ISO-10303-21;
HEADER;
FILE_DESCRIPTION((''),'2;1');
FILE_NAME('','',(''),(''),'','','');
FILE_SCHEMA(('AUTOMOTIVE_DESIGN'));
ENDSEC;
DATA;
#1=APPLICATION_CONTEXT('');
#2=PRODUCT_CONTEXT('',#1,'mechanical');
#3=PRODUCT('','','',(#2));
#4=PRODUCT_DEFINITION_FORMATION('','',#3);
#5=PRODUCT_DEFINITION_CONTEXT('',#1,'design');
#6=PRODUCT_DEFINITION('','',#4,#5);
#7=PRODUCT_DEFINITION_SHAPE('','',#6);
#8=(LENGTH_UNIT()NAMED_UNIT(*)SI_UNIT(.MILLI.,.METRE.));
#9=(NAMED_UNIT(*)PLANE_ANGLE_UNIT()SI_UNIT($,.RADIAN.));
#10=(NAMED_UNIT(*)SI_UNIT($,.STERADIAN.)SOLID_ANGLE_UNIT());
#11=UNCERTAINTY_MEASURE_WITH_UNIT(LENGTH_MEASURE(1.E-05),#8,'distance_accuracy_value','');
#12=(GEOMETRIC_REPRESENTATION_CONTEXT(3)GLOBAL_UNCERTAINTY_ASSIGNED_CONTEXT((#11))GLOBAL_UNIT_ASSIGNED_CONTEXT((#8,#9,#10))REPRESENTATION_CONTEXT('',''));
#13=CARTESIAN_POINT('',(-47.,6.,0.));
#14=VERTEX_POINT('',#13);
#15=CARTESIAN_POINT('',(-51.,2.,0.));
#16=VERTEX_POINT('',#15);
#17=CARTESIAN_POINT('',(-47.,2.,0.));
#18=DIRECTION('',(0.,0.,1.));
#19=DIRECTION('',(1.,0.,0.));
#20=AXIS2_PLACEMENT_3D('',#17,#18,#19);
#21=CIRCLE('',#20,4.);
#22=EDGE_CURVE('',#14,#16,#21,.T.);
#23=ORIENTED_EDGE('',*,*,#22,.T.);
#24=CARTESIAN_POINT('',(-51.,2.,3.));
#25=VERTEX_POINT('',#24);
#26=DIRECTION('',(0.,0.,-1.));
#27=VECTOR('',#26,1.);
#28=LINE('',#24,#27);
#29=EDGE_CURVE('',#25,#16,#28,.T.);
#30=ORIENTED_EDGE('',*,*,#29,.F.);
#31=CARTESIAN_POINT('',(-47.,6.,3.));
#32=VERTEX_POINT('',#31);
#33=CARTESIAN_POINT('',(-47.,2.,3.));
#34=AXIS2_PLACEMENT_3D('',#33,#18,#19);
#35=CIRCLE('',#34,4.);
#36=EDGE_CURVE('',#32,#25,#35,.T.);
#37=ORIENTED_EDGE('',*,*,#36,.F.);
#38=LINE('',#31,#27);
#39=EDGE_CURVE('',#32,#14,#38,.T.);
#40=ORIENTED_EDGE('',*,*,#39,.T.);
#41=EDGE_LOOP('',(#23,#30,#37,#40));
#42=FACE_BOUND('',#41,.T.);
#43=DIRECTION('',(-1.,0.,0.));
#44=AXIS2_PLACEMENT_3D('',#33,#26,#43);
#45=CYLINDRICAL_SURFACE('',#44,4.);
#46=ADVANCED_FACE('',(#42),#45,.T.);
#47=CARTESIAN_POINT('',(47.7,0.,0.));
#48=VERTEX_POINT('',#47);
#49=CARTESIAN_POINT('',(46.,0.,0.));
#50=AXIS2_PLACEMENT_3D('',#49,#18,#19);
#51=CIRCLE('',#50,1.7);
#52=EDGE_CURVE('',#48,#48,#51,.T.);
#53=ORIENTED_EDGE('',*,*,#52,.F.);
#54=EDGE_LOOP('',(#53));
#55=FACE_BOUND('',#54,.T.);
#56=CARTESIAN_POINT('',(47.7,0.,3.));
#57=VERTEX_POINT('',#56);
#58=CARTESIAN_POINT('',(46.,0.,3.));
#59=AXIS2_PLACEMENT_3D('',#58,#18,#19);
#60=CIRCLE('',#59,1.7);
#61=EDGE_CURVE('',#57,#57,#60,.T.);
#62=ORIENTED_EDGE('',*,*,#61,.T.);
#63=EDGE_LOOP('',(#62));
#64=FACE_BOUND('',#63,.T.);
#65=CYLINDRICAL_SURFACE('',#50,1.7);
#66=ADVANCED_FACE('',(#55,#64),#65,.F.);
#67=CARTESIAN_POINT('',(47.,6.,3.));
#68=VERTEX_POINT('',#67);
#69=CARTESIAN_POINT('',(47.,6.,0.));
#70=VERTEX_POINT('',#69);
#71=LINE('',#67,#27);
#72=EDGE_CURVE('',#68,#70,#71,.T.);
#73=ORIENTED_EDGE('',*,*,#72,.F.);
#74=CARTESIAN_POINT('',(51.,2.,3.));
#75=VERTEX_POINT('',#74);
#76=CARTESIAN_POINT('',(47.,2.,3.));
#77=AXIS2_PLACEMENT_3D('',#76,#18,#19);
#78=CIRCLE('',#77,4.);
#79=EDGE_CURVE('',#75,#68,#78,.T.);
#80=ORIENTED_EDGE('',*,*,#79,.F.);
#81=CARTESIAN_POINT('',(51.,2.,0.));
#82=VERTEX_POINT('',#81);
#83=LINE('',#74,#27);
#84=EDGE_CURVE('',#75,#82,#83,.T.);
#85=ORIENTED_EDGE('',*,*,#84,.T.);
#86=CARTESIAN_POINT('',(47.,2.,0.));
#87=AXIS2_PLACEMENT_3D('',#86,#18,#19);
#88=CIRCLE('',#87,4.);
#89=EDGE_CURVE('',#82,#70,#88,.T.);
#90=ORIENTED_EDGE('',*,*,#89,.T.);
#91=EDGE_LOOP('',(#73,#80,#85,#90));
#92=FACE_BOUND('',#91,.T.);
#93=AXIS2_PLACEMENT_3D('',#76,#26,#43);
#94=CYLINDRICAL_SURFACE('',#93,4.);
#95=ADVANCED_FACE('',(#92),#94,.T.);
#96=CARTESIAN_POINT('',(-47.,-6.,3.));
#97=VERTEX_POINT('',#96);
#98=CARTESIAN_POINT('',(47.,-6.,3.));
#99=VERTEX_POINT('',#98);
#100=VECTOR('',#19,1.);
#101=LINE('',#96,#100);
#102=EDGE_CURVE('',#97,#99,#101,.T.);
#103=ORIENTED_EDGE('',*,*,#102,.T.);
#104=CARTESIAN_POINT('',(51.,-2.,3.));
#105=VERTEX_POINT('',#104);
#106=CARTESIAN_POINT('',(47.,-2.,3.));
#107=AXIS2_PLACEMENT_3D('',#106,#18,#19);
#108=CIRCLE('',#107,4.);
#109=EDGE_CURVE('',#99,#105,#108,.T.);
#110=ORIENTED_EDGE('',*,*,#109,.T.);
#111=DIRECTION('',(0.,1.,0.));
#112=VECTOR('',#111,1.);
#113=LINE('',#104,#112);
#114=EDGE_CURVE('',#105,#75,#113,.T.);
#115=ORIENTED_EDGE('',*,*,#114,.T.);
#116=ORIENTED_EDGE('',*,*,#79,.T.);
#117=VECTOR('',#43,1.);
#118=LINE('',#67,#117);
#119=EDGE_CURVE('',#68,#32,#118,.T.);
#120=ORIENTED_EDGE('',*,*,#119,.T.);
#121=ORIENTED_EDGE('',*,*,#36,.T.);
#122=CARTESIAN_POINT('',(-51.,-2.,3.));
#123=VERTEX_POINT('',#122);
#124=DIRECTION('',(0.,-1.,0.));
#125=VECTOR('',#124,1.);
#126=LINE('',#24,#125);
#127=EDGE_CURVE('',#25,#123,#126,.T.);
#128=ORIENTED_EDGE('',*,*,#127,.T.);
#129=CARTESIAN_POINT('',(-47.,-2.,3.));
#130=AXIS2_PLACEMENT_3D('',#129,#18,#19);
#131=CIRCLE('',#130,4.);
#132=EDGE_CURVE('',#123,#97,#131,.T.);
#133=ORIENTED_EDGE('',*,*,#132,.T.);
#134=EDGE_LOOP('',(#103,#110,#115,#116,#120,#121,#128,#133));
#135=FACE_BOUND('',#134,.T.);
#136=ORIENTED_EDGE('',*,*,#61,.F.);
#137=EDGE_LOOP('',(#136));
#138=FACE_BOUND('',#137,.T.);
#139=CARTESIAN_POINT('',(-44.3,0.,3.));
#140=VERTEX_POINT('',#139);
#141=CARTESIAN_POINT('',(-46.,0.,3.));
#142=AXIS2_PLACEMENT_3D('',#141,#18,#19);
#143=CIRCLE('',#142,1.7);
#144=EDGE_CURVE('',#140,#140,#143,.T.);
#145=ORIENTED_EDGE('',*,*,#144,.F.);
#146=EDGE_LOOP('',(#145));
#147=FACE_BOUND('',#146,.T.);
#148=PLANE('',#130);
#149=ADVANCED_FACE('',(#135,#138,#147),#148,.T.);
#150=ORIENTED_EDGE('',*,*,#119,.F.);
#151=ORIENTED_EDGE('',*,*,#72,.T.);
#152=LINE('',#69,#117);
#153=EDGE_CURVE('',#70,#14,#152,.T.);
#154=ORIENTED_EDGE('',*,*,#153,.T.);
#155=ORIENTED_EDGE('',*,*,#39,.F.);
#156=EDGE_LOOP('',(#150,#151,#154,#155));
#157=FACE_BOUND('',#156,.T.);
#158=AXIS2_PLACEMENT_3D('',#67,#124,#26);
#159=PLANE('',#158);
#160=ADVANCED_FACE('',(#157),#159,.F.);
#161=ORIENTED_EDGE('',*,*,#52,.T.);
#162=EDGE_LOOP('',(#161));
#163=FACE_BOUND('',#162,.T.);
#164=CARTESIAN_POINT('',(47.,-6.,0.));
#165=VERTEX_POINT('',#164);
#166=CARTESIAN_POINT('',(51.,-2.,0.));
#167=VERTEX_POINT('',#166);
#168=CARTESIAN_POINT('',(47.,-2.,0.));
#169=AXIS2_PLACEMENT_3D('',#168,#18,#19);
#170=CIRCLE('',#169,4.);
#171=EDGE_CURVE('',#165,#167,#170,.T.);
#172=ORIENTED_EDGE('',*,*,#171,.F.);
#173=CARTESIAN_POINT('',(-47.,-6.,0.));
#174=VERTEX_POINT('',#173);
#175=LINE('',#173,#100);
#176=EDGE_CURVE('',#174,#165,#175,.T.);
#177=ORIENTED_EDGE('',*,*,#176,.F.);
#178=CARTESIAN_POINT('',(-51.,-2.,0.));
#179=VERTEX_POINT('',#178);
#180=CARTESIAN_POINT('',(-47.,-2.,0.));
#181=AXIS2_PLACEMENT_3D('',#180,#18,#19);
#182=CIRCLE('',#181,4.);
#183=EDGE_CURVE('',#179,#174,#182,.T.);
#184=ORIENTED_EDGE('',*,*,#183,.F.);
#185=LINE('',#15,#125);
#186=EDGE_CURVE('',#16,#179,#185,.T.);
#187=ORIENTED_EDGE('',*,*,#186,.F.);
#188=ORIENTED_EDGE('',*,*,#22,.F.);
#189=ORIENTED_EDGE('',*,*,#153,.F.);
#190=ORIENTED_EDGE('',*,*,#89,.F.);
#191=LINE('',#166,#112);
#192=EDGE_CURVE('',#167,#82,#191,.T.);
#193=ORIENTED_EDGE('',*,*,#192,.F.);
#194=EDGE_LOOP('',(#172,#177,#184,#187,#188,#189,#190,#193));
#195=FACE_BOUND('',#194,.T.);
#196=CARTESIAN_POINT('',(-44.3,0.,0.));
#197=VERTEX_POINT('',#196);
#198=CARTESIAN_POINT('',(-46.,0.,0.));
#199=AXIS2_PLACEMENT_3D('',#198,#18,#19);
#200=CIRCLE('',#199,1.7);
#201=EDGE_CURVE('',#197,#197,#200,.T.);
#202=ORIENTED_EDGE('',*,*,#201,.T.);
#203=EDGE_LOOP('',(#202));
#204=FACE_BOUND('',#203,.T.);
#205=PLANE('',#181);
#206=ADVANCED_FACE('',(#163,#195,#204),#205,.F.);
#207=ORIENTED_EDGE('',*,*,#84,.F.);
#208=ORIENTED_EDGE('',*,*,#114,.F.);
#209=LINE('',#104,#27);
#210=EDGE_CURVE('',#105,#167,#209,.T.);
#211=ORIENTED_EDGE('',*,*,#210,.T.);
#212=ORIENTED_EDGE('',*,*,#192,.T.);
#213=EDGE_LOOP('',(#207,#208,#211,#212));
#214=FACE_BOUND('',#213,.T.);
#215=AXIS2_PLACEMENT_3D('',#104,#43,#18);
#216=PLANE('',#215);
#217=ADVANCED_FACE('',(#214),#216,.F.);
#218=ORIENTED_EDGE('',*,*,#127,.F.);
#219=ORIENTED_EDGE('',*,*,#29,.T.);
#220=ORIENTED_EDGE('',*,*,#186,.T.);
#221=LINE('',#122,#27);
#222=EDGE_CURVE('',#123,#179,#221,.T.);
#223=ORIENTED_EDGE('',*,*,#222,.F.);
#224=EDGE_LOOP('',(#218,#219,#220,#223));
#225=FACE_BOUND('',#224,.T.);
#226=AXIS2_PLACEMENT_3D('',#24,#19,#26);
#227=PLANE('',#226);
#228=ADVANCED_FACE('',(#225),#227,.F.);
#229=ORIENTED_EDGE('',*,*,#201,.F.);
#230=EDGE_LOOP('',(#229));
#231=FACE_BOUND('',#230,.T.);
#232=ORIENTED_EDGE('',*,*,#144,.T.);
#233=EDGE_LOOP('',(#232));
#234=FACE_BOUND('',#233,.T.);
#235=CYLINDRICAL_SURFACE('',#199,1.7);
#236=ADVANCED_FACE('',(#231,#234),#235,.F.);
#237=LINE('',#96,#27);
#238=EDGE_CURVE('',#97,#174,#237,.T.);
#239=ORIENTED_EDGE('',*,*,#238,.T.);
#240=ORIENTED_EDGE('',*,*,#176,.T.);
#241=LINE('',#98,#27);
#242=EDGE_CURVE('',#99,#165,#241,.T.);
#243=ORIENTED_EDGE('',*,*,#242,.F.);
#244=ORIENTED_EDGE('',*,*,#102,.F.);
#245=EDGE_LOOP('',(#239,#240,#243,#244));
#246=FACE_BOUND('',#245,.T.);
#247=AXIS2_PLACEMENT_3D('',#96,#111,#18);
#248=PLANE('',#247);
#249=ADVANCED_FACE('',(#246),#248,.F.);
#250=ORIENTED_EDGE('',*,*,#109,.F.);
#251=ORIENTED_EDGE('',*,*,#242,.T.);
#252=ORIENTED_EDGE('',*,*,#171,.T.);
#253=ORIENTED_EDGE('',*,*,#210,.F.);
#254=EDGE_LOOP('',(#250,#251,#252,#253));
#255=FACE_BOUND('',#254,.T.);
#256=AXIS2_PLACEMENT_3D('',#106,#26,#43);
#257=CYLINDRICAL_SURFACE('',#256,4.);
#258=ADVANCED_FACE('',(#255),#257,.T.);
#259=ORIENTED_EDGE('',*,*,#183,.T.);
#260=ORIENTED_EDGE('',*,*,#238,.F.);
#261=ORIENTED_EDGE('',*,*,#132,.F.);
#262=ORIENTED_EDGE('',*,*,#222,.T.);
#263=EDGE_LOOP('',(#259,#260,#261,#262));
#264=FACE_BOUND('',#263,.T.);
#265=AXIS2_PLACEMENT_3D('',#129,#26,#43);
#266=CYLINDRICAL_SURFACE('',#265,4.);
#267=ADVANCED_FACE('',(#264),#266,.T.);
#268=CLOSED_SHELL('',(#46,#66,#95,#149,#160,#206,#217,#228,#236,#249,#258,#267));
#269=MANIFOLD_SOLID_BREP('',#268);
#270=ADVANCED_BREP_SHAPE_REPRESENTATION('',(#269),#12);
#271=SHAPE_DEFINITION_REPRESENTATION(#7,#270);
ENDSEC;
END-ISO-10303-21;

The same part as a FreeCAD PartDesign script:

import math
import FreeCAD as App
import Part
import Sketcher

V = App.Vector

doc = App.newDocument("Part")
body = doc.addObject("PartDesign::Body", "Body")

sketch1 = body.newObject("Sketcher::SketchObject", "Sketch")
sketch1.AttachmentSupport = (doc.getObject("XY_Plane"), [""])
sketch1.MapMode = "FlatFace"
sketch1.addGeometry(Part.LineSegment(V(-47, -6, 0), V(47, -6, 0)), False)
sketch1.addGeometry(Part.ArcOfCircle(Part.Circle(V(47, -2, 0), V(0, 0, 1), 4), math.radians(-90), math.radians(0)), False)
sketch1.addGeometry(Part.LineSegment(V(51, -2, 0), V(51, 2, 0)), False)
sketch1.addGeometry(Part.ArcOfCircle(Part.Circle(V(47, 2, 0), V(0, 0, 1), 4), math.radians(0), math.radians(90)), False)
sketch1.addGeometry(Part.LineSegment(V(47, 6, 0), V(-47, 6, 0)), False)
sketch1.addGeometry(Part.ArcOfCircle(Part.Circle(V(-47, 2, 0), V(0, 0, 1), 4), math.radians(90), math.radians(180)), False)
sketch1.addGeometry(Part.LineSegment(V(-51, 2, 0), V(-51, -2, 0)), False)
sketch1.addGeometry(Part.ArcOfCircle(Part.Circle(V(-47, -2, 0), V(0, 0, 1), 4), math.radians(180), math.radians(270)), False)
sketch1.addConstraint(Sketcher.Constraint("Tangent", 0, 2, 1, 1))
sketch1.addConstraint(Sketcher.Constraint("Tangent", 1, 2, 2, 1))
sketch1.addConstraint(Sketcher.Constraint("Tangent", 2, 2, 3, 1))
sketch1.addConstraint(Sketcher.Constraint("Tangent", 3, 2, 4, 1))
sketch1.addConstraint(Sketcher.Constraint("Tangent", 4, 2, 5, 1))
sketch1.addConstraint(Sketcher.Constraint("Tangent", 5, 2, 6, 1))
sketch1.addConstraint(Sketcher.Constraint("Tangent", 6, 2, 7, 1))
sketch1.addConstraint(Sketcher.Constraint("Tangent", 7, 2, 0, 1))
sketch1.addConstraint(Sketcher.Constraint("Horizontal", 0))
sketch1.addConstraint(Sketcher.Constraint("Vertical", 2))
sketch1.addConstraint(Sketcher.Constraint("Horizontal", 4))
sketch1.addConstraint(Sketcher.Constraint("Vertical", 6))
sketch1.addConstraint(Sketcher.Constraint("Equal", 1, 3))
sketch1.addConstraint(Sketcher.Constraint("Equal", 3, 5))
sketch1.addConstraint(Sketcher.Constraint("Equal", 5, 7))
sketch1.addConstraint(Sketcher.Constraint("Symmetric", 1, 3, 5, 3, -1, 1))
sketch1.addConstraint(Sketcher.Constraint("Radius", 1, 4.0))
sketch1.addConstraint(Sketcher.Constraint("DistanceX", 0, 1, 0, 2, 94.0))
sketch1.addConstraint(Sketcher.Constraint("DistanceY", 2, 1, 2, 2, 4.0))
pad1 = body.newObject("PartDesign::Pad", "Pad")
pad1.Profile = sketch1
pad1.Length = 3

sketch2 = body.newObject("Sketcher::SketchObject", "Sketch001")
sketch2.AttachmentSupport = (doc.getObject("XY_Plane"), [""])
sketch2.MapMode = "FlatFace"
sketch2.AttachmentOffset = App.Placement(V(0, 0, 3), App.Rotation())
sketch2.addGeometry(Part.Circle(V(-46, 0, 0), V(0, 0, 1), 1.7), False)
sketch2.addGeometry(Part.Circle(V(46, 0, 0), V(0, 0, 1), 1.7), False)
sketch2.addConstraint(Sketcher.Constraint("Equal", 0, 1))
sketch2.addConstraint(Sketcher.Constraint("Symmetric", 0, 3, 1, 3, -1, 1))
sketch2.addConstraint(Sketcher.Constraint("PointOnObject", 0, 3, -1))
sketch2.addConstraint(Sketcher.Constraint("Diameter", 0, 3.4))
sketch2.addConstraint(Sketcher.Constraint("DistanceX", 0, 3, -1, 1, 46.0))
pocket1 = body.newObject("PartDesign::Pocket", "Pocket")
pocket1.Profile = sketch2
pocket1.Type = "ThroughAll"

doc.recompute()
